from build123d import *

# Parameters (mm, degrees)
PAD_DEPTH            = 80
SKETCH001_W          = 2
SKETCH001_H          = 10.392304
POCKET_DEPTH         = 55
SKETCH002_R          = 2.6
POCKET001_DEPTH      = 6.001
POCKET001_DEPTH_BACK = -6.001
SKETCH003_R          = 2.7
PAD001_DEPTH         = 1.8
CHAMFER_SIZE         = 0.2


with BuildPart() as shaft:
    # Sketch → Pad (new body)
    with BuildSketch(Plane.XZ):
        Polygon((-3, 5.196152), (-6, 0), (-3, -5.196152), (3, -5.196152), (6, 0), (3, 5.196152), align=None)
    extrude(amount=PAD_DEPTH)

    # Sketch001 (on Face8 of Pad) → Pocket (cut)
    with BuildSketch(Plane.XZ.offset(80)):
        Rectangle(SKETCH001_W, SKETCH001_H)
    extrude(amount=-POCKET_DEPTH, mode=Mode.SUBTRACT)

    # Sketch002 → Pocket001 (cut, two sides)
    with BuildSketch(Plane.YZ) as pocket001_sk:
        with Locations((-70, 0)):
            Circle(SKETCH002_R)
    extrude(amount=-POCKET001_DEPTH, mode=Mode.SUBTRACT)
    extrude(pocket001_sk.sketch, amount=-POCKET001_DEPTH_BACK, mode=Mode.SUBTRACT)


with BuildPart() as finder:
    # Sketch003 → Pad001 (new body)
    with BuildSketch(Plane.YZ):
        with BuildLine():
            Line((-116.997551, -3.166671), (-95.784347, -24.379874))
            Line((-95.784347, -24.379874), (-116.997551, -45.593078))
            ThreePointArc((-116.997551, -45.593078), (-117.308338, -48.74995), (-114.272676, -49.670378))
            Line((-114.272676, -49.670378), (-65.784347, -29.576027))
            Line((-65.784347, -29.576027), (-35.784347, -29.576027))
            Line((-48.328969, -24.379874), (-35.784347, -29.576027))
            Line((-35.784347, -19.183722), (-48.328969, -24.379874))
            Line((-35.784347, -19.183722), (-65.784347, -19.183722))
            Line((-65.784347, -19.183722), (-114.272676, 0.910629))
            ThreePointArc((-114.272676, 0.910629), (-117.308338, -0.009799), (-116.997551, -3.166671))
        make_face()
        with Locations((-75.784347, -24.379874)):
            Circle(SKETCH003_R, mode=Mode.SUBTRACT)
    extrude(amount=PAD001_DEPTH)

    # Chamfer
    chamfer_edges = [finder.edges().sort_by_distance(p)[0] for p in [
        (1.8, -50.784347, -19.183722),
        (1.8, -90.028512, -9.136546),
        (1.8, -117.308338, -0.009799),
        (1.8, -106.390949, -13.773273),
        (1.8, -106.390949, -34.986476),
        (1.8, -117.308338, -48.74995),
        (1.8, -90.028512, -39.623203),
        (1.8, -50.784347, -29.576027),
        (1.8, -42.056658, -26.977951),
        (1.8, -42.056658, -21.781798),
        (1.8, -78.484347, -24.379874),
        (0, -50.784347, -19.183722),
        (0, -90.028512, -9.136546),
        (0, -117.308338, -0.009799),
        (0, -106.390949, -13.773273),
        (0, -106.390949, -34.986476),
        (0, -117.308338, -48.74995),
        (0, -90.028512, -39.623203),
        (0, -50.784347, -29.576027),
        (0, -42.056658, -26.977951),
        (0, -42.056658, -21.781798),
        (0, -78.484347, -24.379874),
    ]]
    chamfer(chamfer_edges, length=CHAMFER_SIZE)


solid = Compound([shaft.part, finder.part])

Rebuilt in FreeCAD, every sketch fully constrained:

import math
import FreeCAD as App
import Part
import Sketcher
from FreeCAD import Vector
Q = App.Units.Quantity


def edges_at(feature, points):
    """Names of the edges that pass closest to the given points."""
    edges = feature.Shape.Edges
    near = lambda p: min(range(len(edges)), key=lambda i: edges[i].distToShape(Part.Vertex(*p))[0])
    return sorted({f"Edge{near(p) + 1}" for p in points})


def add_polygon(sketch, points):
    """Adds a closed chain of lines whose ends are joined by coincident constraints."""
    first, n = sketch.GeometryCount, len(points)
    for a, b in zip(points, points[1:] + points[:1]):
        sketch.addGeometry(Part.LineSegment(App.Vector(*a, 0), App.Vector(*b, 0)), False)
    for i in range(n):
        sketch.addConstraint(Sketcher.Constraint("Coincident", first + i, 2, first + (i + 1) % n, 1))

doc = App.newDocument("Part")
body = doc.addObject("PartDesign::Body", "Body")

# Sketch on XZ plane
sketch1 = body.newObject("Sketcher::SketchObject", "Sketch")
sketch1.AttachmentSupport = (doc.getObject("XZ_Plane"), [""])
sketch1.MapMode = "FlatFace"
add_polygon(sketch1, [(-3, 5), (-6, 0), (-3, -5), (3, -5), (6, 0), (3, 5)])  # lines 0-5
sketch1.addConstraint(Sketcher.Constraint("Horizontal", 2))
sketch1.addConstraint(Sketcher.Constraint("Horizontal", 5))
sketch1.addConstraint(Sketcher.Constraint("Symmetric", 0, 2, 3, 2, -1, 1))
sketch1.addConstraint(Sketcher.Constraint("Symmetric", 1, 2, 4, 2, -1, 1))
sketch1.addConstraint(Sketcher.Constraint("PointOnObject", 0, 2, -1))
sketch1.addConstraint(Sketcher.Constraint("Parallel", 0, 3))
sketch1.addConstraint(Sketcher.Constraint("Vertical", 2, 2, 4, 2))
sketch1.addConstraint(Sketcher.Constraint("DistanceX", 2, 1, 2, 2, 6.0))
sketch1.addConstraint(Sketcher.Constraint("Angle", 0, Q("-120.000002 deg")))
sketch1.addConstraint(Sketcher.Constraint("Distance", 0, 6.0))
pad1 = body.newObject("PartDesign::Pad", "Pad")
pad1.Profile = sketch1
pad1.Length = 80

# Sketch on XZ plane
sketch2 = body.newObject("Sketcher::SketchObject", "Sketch001")
sketch2.AttachmentSupport = (doc.getObject("XZ_Plane"), [""])
sketch2.MapMode = "FlatFace"
sketch2.AttachmentOffset = App.Placement(Vector(0, 0, 80), App.Rotation())
add_polygon(sketch2, [(-1, 5.2), (-1, -5.2), (1, -5.2), (1, 5.2)])  # lines 0-3
sketch2.addConstraint(Sketcher.Constraint("Vertical", 0))
sketch2.addConstraint(Sketcher.Constraint("Horizontal", 1))
sketch2.addConstraint(Sketcher.Constraint("Vertical", 2))
sketch2.addConstraint(Sketcher.Constraint("Horizontal", 3))
sketch2.addConstraint(Sketcher.Constraint("Symmetric", 0, 2, 2, 2, -1, 1))
sketch2.addConstraint(Sketcher.Constraint("DistanceX", 1, 1, 1, 2, 2.0))
sketch2.addConstraint(Sketcher.Constraint("DistanceY", 0, 2, 0, 1, 10.392304))
pocket1 = body.newObject("PartDesign::Pocket", "Pocket")
pocket1.Profile = sketch2
pocket1.Length = 55

# Sketch on YZ plane
sketch3 = body.newObject("Sketcher::SketchObject", "Sketch002")
sketch3.AttachmentSupport = (doc.getObject("YZ_Plane"), [""])
sketch3.MapMode = "FlatFace"
sketch3.addGeometry(Part.Circle(Vector(-70, 0, 0), Vector(0, 0, 1), 2.6), False)
sketch3.addConstraint(Sketcher.Constraint("PointOnObject", 0, 3, -1))
sketch3.addConstraint(Sketcher.Constraint("Diameter", 0, 5.2))
sketch3.addConstraint(Sketcher.Constraint("DistanceX", 0, 3, -1, 1, 70.0))
pocket2 = body.newObject("PartDesign::Pocket", "Pocket001")
pocket2.Profile = sketch3
pocket2.Type = "ThroughAll"
pocket2.Midplane = True
body2 = doc.addObject("PartDesign::Body", "Body001")

# Sketch on YZ plane
sketch4 = body2.newObject("Sketcher::SketchObject", "Sketch003")
sketch4.AttachmentSupport = (doc.getObject("YZ_Plane001"), [""])
sketch4.MapMode = "FlatFace"
sketch4.addGeometry(Part.LineSegment(Vector(-117, -3.2, 0), Vector(-95.8, -24.4, 0)), False)
sketch4.addGeometry(Part.LineSegment(Vector(-95.8, -24.4, 0), Vector(-117, -45.6, 0)), False)
sketch4.addGeometry(Part.ArcOfCircle(Part.Circle(Vector(-115.2, -47.4, 0), Vector(0, 0, 1), 2.5), math.radians(135), math.radians(293)), False)
sketch4.addGeometry(Part.LineSegment(Vector(-114.3, -49.7, 0), Vector(-65.8, -29.6, 0)), False)
sketch4.addGeometry(Part.LineSegment(Vector(-65.8, -29.6, 0), Vector(-35.8, -29.6, 0)), False)
sketch4.addGeometry(Part.LineSegment(Vector(-35.8, -29.6, 0), Vector(-48.3, -24.4, 0)), False)
sketch4.addGeometry(Part.LineSegment(Vector(-48.3, -24.4, 0), Vector(-35.8, -19.2, 0)), False)
sketch4.addGeometry(Part.LineSegment(Vector(-35.8, -19.2, 0), Vector(-65.8, -19.2, 0)), False)
sketch4.addGeometry(Part.LineSegment(Vector(-65.8, -19.2, 0), Vector(-114.3, 0.9, 0)), False)
sketch4.addGeometry(Part.ArcOfCircle(Part.Circle(Vector(-115.2, -1.4, 0), Vector(0, 0, 1), 2.5), math.radians(67), math.radians(225)), False)
sketch4.addGeometry(Part.Circle(Vector(-75.8, -24.4, 0), Vector(0, 0, 1), 2.7), False)
sketch4.addConstraint(Sketcher.Constraint("Coincident", 0, 2, 1, 1))
sketch4.addConstraint(Sketcher.Constraint("Tangent", 1, 2, 2, 1))
sketch4.addConstraint(Sketcher.Constraint("Tangent", 2, 2, 3, 1))
sketch4.addConstraint(Sketcher.Constraint("Coincident", 3, 2, 4, 1))
sketch4.addConstraint(Sketcher.Constraint("Coincident", 4, 2, 5, 1))
sketch4.addConstraint(Sketcher.Constraint("Coincident", 5, 2, 6, 1))
sketch4.addConstraint(Sketcher.Constraint("Coincident", 6, 2, 7, 1))
sketch4.addConstraint(Sketcher.Constraint("Coincident", 7, 2, 8, 1))
sketch4.addConstraint(Sketcher.Constraint("Tangent", 8, 2, 9, 1))
sketch4.addConstraint(Sketcher.Constraint("Tangent", 9, 2, 0, 1))
sketch4.addConstraint(Sketcher.Constraint("Horizontal", 4))
sketch4.addConstraint(Sketcher.Constraint("Horizontal", 7))
sketch4.addConstraint(Sketcher.Constraint("Equal", 2, 9))
sketch4.addConstraint(Sketcher.Constraint("Perpendicular", 0, 1))
sketch4.addConstraint(Sketcher.Constraint("Horizontal", 10, 3, 0, 2))
sketch4.addConstraint(Sketcher.Constraint("Horizontal", 0, 2, 5, 2))
sketch4.addConstraint(Sketcher.Constraint("Vertical", 2, 3, 9, 3))
sketch4.addConstraint(Sketcher.Constraint("Vertical", 4, 2, 6, 2))
sketch4.addConstraint(Sketcher.Constraint("Vertical", 3, 2, 7, 2))
sketch4.addConstraint(Sketcher.Constraint("Vertical", 2, 2, 8, 2))
sketch4.addConstraint(Sketcher.Constraint("Vertical", 1, 2, 9, 2))
sketch4.addConstraint(Sketcher.Constraint("Diameter", 10, 5.4))
sketch4.addConstraint(Sketcher.Constraint("Radius", 2, 2.5))
sketch4.addConstraint(Sketcher.Constraint("DistanceX", 4, 1, 4, 2, 30.0))
sketch4.addConstraint(Sketcher.Constraint("Distance", 0, 30.0))
sketch4.addConstraint(Sketcher.Constraint("Angle", 5, Q("157.499998 deg")))
sketch4.addConstraint(Sketcher.Constraint("DistanceX", 0, 2, 10, 3, 20.0))
sketch4.addConstraint(Sketcher.Constraint("DistanceX", 10, 3, 3, 2, 10.0))
sketch4.addConstraint(Sketcher.Constraint("Distance", 5, 13.578201))
sketch4.addConstraint(Sketcher.Constraint("DistanceX", 1, 2, -1, 1, 116.997551))
sketch4.addConstraint(Sketcher.Constraint("DistanceY", 6, 2, -1, 1, 19.183722))
pad2 = body2.newObject("PartDesign::Pad", "Pad001")
pad2.Profile = sketch4
pad2.Length = 1.8
doc.recompute()

chamfer = body2.newObject("PartDesign::Chamfer", "Chamfer")
chamfer.Base = (pad2, edges_at(pad2, [
    (1.8, -50.784, -19.184),
    (1.8, -90.029, -9.137),
    (1.8, -117.308, -0.01),
    (1.8, -106.391, -13.773),
    (1.8, -106.391, -34.986),
    (1.8, -117.308, -48.75),
    (1.8, -90.029, -39.623),
    (1.8, -50.784, -29.576),
    (1.8, -42.057, -26.978),
    (1.8, -42.057, -21.782),
    (1.8, -78.484, -24.38),
    (0, -50.784, -19.184),
    (0, -90.029, -9.137),
    (0, -117.308, -0.01),
    (0, -106.391, -13.773),
    (0, -106.391, -34.986),
    (0, -117.308, -48.75),
    (0, -90.029, -39.623),
    (0, -50.784, -29.576),
    (0, -42.057, -26.978),
    (0, -42.057, -21.782),
    (0, -78.484, -24.38),
]))
chamfer.Size = 0.2

doc.recompute()
